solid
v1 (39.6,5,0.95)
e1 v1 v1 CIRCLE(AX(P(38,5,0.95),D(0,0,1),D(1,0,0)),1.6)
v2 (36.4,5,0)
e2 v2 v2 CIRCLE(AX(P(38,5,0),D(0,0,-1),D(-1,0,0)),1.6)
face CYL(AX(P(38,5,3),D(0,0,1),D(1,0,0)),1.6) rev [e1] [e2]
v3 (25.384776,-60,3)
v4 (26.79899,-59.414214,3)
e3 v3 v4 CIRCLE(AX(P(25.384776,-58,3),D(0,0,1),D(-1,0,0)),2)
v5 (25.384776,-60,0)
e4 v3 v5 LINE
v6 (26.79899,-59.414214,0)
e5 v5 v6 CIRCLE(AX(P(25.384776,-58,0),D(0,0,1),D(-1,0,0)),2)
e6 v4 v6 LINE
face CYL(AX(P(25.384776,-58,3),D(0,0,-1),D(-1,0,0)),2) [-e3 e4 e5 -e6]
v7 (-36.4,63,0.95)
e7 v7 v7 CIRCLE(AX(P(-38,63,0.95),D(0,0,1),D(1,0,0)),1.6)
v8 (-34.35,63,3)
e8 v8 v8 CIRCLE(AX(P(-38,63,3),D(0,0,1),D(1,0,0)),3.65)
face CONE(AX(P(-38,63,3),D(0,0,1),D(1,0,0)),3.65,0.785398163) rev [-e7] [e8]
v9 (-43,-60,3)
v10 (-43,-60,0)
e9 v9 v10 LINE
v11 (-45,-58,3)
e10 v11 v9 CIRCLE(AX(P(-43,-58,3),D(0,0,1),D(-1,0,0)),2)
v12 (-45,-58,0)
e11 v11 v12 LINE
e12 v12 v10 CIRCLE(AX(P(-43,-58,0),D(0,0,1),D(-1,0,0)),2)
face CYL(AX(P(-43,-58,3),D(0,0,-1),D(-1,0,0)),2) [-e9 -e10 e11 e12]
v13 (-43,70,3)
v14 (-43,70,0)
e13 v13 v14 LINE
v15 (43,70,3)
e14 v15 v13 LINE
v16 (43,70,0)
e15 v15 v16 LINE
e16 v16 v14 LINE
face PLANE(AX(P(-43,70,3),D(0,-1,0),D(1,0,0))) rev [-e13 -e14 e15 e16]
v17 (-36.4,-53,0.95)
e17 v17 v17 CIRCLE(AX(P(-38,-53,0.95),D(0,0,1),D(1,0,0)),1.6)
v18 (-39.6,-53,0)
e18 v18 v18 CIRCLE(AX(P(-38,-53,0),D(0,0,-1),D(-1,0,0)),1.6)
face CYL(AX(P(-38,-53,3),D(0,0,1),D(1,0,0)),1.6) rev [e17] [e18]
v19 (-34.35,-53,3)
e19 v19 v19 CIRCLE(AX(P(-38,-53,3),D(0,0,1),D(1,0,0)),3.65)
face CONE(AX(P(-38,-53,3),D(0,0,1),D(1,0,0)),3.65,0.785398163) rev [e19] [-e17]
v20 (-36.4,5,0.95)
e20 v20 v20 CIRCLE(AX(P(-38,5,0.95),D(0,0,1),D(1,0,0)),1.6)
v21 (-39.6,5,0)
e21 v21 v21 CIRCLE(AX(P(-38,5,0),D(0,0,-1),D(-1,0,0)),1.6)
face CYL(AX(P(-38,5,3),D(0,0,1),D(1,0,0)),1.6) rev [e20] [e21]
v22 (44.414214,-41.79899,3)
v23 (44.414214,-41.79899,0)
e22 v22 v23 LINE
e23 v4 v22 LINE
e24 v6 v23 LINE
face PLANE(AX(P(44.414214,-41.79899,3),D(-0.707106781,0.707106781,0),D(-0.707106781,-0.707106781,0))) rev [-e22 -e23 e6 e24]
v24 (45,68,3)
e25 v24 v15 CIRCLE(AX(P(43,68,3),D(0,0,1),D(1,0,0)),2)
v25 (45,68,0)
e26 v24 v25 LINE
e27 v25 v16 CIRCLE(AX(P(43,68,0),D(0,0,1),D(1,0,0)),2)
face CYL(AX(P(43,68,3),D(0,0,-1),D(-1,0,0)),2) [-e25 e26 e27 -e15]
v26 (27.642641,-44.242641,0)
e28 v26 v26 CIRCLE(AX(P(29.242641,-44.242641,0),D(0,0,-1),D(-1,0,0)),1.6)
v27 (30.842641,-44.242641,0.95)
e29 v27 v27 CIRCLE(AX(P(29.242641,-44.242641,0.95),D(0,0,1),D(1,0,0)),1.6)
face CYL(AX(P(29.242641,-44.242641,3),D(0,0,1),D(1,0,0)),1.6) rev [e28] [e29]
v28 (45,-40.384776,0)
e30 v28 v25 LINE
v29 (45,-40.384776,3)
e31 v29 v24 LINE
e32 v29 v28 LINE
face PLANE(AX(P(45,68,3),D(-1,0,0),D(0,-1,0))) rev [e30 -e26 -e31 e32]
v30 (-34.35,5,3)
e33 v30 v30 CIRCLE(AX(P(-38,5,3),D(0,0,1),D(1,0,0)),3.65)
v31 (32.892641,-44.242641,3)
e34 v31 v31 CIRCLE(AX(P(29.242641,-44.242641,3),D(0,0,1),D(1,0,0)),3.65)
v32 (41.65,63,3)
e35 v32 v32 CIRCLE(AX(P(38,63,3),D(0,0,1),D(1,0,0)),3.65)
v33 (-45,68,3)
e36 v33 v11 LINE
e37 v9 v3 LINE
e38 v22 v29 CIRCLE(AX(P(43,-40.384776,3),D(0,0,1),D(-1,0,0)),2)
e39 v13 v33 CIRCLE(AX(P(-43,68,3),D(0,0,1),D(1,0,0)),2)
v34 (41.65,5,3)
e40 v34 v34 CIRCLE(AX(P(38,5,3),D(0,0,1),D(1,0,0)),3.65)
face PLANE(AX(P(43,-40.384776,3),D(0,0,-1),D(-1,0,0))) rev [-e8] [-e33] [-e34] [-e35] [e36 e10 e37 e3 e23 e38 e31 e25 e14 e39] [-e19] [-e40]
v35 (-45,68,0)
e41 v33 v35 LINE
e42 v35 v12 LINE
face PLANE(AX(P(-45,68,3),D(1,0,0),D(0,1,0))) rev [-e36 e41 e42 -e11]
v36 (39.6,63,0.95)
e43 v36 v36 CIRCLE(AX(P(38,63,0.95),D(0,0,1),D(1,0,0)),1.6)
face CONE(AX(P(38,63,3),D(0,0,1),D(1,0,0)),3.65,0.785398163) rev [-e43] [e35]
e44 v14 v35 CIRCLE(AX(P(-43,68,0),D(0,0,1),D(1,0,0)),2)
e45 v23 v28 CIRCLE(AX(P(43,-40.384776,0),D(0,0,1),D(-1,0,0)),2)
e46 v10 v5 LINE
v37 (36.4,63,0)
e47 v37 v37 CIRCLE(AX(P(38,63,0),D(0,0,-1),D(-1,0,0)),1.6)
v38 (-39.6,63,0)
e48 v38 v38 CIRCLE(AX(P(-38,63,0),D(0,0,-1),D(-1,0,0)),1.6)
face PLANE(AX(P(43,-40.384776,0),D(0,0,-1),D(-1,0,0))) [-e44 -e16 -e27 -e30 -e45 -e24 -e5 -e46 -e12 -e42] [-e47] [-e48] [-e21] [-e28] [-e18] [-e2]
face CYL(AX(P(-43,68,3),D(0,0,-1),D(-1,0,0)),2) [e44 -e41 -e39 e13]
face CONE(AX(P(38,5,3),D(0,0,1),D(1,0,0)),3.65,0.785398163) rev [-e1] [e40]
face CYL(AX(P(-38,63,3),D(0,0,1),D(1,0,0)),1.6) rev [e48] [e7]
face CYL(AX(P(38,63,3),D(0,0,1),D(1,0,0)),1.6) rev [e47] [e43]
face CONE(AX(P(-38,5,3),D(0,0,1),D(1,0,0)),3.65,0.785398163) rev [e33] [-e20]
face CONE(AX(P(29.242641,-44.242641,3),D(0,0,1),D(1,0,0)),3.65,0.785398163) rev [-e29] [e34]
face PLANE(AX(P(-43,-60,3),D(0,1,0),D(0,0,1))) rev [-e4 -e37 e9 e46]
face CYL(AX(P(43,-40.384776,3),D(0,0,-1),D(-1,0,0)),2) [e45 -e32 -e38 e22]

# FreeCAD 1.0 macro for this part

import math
import FreeCAD as App
import Part
import Sketcher

V = App.Vector
Q = App.Units.Quantity

doc = App.newDocument("Part")
body = doc.addObject("PartDesign::Body", "Body")

sketch1 = doc.addObject("Sketcher::SketchObject", "Sketch")
body.addObject(sketch1)
sketch1.AttachmentSupport = (doc.XY_Plane, [""])
sketch1.MapMode = "FlatFace"
sketch1.addGeometry([
    Part.LineSegment(V(43, 70, 0), V(-43, 70, 0)),
    Part.ArcOfCircle(Part.Circle(V(-43, 68, 0), V(0, 0, 1), 2), math.radians(90), math.radians(180)),
    Part.LineSegment(V(-45, 68, 0), V(-45, -58, 0)),
    Part.ArcOfCircle(Part.Circle(V(-43, -58, 0), V(0, 0, 1), 2), math.radians(-180), math.radians(-90)),
    Part.LineSegment(V(-43, -60, 0), V(25.384776, -60, 0)),
    Part.ArcOfCircle(Part.Circle(V(25.384776, -58, 0), V(0, 0, 1), 2), math.radians(-90), math.radians(-45)),
    Part.LineSegment(V(26.79899, -59.414214, 0), V(44.414214, -41.79899, 0)),
    Part.ArcOfCircle(Part.Circle(V(43, -40.384776, 0), V(0, 0, 1), 2), math.radians(-45), math.radians(0)),
    Part.LineSegment(V(45, -40.384776, 0), V(45, 68, 0)),
    Part.ArcOfCircle(Part.Circle(V(43, 68, 0), V(0, 0, 1), 2), math.radians(0), math.radians(90)),
], False)
sketch1.addConstraint([
    Sketcher.Constraint("Tangent", 0, 2, 1, 1),
    Sketcher.Constraint("Tangent", 1, 2, 2, 1),
    Sketcher.Constraint("Tangent", 2, 2, 3, 1),
    Sketcher.Constraint("Tangent", 3, 2, 4, 1),
    Sketcher.Constraint("Tangent", 4, 2, 5, 1),
    Sketcher.Constraint("Tangent", 5, 2, 6, 1),
    Sketcher.Constraint("Tangent", 6, 2, 7, 1),
    Sketcher.Constraint("Tangent", 7, 2, 8, 1),
    Sketcher.Constraint("Tangent", 8, 2, 9, 1),
    Sketcher.Constraint("Tangent", 9, 2, 0, 1),
    Sketcher.Constraint("Horizontal", 0),
    Sketcher.Constraint("Vertical", 2),
    Sketcher.Constraint("Horizontal", 4),
    Sketcher.Constraint("Vertical", 8),
    Sketcher.Constraint("Equal", 1, 3),
    Sketcher.Constraint("Equal", 3, 5),
    Sketcher.Constraint("Equal", 5, 7),
    Sketcher.Constraint("Equal", 7, 9),
    Sketcher.Constraint("Radius", 1, 2.0),
    Sketcher.Constraint("DistanceX", 0, 2, 0, 1, 86.0),
    Sketcher.Constraint("DistanceY", 2, 2, 2, 1, 126.0),
    Sketcher.Constraint("Angle", 6, Q("45 deg")),
    Sketcher.Constraint("DistanceX", 1, 3, -1, 1, 43.0),
    Sketcher.Constraint("DistanceY", -1, 1, 1, 3, 68.0),
    Sketcher.Constraint("Distance", 6, 24.911688),
])
pad1 = doc.addObject("PartDesign::Pad", "Pad")
body.addObject(pad1)
pad1.Profile = sketch1
pad1.Length = 3

sketch2 = doc.addObject("Sketcher::SketchObject", "Sketch001")
body.addObject(sketch2)
sketch2.AttachmentSupport = (doc.XY_Plane, [""])
sketch2.MapMode = "FlatFace"
sketch2.AttachmentOffset = App.Placement(V(0, 0, 3), App.Rotation())
sketch2.addGeometry([
    Part.Circle(V(-38, -53, 0), V(0, 0, 1), 1.6),
    Part.Circle(V(29.242641, -44.242641, 0), V(0, 0, 1), 1.6),
    Part.Circle(V(38, 5, 0), V(0, 0, 1), 1.6),
    Part.Circle(V(-38, 5, 0), V(0, 0, 1), 1.6),
    Part.Circle(V(-38, 63, 0), V(0, 0, 1), 1.6),
    Part.Circle(V(38, 63, 0), V(0, 0, 1), 1.6),
], False)
sketch2.addConstraint([
    Sketcher.Constraint("Equal", 0, 1),
    Sketcher.Constraint("Equal", 1, 2),
    Sketcher.Constraint("Equal", 2, 3),
    Sketcher.Constraint("Equal", 3, 4),
    Sketcher.Constraint("Equal", 4, 5),
    Sketcher.Constraint("Symmetric", 2, 3, 3, 3, -2),
    Sketcher.Constraint("Symmetric", 4, 3, 5, 3, -2),
    Sketcher.Constraint("Vertical", 0, 3, 3, 3),
    Sketcher.Constraint("Vertical", 3, 3, 4, 3),
    Sketcher.Constraint("Diameter", 0, 3.2),
    Sketcher.Constraint("DistanceX", 0, 3, -1, 1, 38.0),
    Sketcher.Constraint("DistanceY", 0, 3, -1, 1, 53.0),
    Sketcher.Constraint("DistanceY", -1, 1, 2, 3, 5.0),
    Sketcher.Constraint("DistanceY", -1, 1, 4, 3, 63.0),
    Sketcher.Constraint("DistanceX", -1, 1, 1, 3, 29.242641),
    Sketcher.Constraint("DistanceY", 1, 3, -1, 1, 44.242641),
])
doc.recompute()
hole = doc.addObject("PartDesign::Hole", "Hole")
body.addObject(hole)
hole.Profile = sketch2
hole.ThreadType = "None"
hole.Diameter = 3.2
hole.DepthType = "Dimension"
hole.Depth = 5
hole.DrillPoint = "Angled"
hole.DrillPointAngle = 118
hole.HoleCutType = "Countersink"
hole.HoleCutDiameter = 7.3
hole.HoleCutCountersinkAngle = 90

doc.recompute()
